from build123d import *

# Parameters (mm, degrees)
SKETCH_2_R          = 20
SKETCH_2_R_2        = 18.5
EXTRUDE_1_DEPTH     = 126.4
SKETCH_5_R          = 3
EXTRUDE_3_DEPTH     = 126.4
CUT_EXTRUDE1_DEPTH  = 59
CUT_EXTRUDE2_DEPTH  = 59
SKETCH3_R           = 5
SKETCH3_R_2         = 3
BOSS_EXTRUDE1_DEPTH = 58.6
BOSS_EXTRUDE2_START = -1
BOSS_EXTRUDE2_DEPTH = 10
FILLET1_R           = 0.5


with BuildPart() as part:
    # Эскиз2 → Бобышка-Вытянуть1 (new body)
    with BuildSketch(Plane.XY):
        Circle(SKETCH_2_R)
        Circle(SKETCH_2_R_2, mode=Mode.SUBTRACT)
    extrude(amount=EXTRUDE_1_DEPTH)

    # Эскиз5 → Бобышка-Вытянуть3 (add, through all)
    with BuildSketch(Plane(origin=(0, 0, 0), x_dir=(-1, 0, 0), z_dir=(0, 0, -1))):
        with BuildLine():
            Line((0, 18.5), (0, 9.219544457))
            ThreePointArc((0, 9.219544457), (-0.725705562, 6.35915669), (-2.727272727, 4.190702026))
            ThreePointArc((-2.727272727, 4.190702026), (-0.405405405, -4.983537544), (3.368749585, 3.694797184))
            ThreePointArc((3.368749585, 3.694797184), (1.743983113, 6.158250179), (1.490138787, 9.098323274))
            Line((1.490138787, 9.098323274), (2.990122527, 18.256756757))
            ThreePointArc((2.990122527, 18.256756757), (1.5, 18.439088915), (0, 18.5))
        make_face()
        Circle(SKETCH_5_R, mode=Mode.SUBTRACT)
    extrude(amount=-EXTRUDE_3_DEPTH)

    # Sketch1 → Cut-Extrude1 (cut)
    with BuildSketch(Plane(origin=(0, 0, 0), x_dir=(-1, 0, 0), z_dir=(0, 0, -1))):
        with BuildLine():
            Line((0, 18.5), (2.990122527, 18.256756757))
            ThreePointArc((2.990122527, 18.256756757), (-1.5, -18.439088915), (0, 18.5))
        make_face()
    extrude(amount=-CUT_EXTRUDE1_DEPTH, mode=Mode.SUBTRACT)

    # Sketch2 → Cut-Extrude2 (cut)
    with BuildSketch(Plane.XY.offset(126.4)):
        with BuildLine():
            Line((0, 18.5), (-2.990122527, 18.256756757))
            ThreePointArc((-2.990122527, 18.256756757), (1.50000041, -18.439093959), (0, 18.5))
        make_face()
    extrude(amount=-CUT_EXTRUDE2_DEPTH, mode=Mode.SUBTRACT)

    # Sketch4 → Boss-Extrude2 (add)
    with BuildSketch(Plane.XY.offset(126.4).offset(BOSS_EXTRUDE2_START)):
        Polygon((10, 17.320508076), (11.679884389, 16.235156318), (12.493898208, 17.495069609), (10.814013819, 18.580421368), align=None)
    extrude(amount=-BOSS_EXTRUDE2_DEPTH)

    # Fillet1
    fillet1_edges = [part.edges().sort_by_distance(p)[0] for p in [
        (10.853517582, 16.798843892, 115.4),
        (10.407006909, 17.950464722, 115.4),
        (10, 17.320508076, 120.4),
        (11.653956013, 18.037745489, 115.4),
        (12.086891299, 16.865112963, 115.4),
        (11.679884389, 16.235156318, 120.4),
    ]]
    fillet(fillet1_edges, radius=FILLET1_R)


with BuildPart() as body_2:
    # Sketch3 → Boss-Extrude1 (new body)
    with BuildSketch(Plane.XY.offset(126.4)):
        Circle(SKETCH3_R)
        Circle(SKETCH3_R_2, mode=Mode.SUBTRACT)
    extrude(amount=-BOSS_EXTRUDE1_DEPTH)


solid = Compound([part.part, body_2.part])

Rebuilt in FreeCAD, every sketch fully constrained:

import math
import FreeCAD as App
import Part
import Sketcher
from FreeCAD import Vector
Q = App.Units.Quantity


def edges_at(feature, points):
    """Names of the edges that pass closest to the given points."""
    edges = feature.Shape.Edges
    near = lambda p: min(range(len(edges)), key=lambda i: edges[i].distToShape(Part.Vertex(*p))[0])
    return sorted({f"Edge{near(p) + 1}" for p in points})

doc = App.newDocument("Part")
params = doc.addObject("Spreadsheet::Sheet", "Params")
for row, (alias, value) in enumerate([
    ("sketch1_diameter", "40 mm"),
    ("sketch1_diameter2", "37 mm"),
    ("pad1_length", "126.4 mm"),
    ("sketch2_diameter", "6 mm"),
    ("sketch2_radius", "6 mm"),
    ("sketch2_radius2", "5 mm"),
    ("sketch2_radius3", "18.5 mm"),
    ("pad2_length", "126.4 mm"),
    ("sketch3_radius", "18.5 mm"),
    ("sketch3_length", "3 mm"),
    ("pocket1_length", "59 mm"),
    ("sketch4_length", "3 mm"),
    ("pocket2_length", "59 mm"),
    ("sketch5_length", "2 mm"),
    ("sketch5_length2", "1.5 mm"),
    ("pad3_length", "10 mm"),
    ("fillet_radius", "0.5 mm"),
    ("sketch6_diameter", "10 mm"),
    ("sketch6_diameter2", "6 mm"),
    ("pad4_length", "58.6 mm"),
], start=1):
    params.set(f"A{row}", alias)
    params.set(f"B{row}", "=" + value)
    params.setAlias(f"B{row}", alias)

body = doc.addObject("PartDesign::Body", "Body")

# Sketch on XY plane
sketch1 = body.newObject("Sketcher::SketchObject", "Sketch")
sketch1.AttachmentSupport = (doc.getObject("XY_Plane"), [""])
sketch1.MapMode = "FlatFace"
sketch1.addGeometry([
    Part.Circle(Vector(0, 0, 0), Vector(0, 0, 1), 20),
    Part.Circle(Vector(0, 0, 0), Vector(0, 0, 1), 18.5),
], False)
sketch1.addConstraint([
    Sketcher.Constraint("Coincident", 0, 3, -1, 1),
    Sketcher.Constraint("Coincident", 1, 3, -1, 1),
    Sketcher.Constraint("Diameter", 0, Q("40 mm")),
    Sketcher.Constraint("Diameter", 1, Q("37 mm")),
])
sketch1.setExpression("Constraints[2]", "Params.sketch1_diameter")
sketch1.setExpression("Constraints[3]", "Params.sketch1_diameter2")
pad1 = body.newObject("PartDesign::Pad", "Pad")
pad1.Profile = sketch1
pad1.setExpression("Length", "Params.pad1_length")

# Sketch on XY plane
sketch2 = body.newObject("Sketcher::SketchObject", "Sketch001")
sketch2.AttachmentSupport = (doc.getObject("XY_Plane"), [""])
sketch2.MapMode = "FlatFace"
sketch2.addGeometry([
    Part.LineSegment(Vector(0, 18.5, 0), Vector(0, 9.219544, 0)),  # 0
    Part.ArcOfCircle(Part.Circle(Vector(6, 9.219544, 0), Vector(0, 0, 1), 6), math.radians(-180), math.radians(-123.055731)),  # 1
    Part.ArcOfCircle(Part.Circle(Vector(0, 0, 0), Vector(0, 0, 1), 5), math.radians(132.357149), math.radians(416.944269)),  # 2
    Part.ArcOfCircle(Part.Circle(Vector(-7.411249, 8.128554, 0), Vector(0, 0, 1), 6), math.radians(-47.642851), math.radians(9.301418)),  # 3
    Part.LineSegment(Vector(-1.490139, 9.098323, 0), Vector(-2.990123, 18.256757, 0)),  # 4
    Part.ArcOfCircle(Part.Circle(Vector(0, 0, 0), Vector(0, 0, 1), 18.5), math.radians(90), math.radians(99.301418)),  # 5
    Part.Circle(Vector(0, 0, 0), Vector(0, 0, 1), 3),  # 6
], False)
sketch2.addConstraint([
    Sketcher.Constraint("Tangent", 0, 2, 1, 1),
    Sketcher.Constraint("Tangent", 1, 2, 2, 2),
    Sketcher.Constraint("Tangent", 2, 1, 3, 1),
    Sketcher.Constraint("Tangent", 3, 2, 4, 1),
    Sketcher.Constraint("Coincident", 4, 2, 5, 2),
    Sketcher.Constraint("Coincident", 5, 1, 0, 1),
    Sketcher.Constraint("Vertical", 0),
    Sketcher.Constraint("Coincident", 2, 3, -1, 1),
    Sketcher.Constraint("Coincident", 5, 3, -1, 1),
    Sketcher.Constraint("Coincident", 6, 3, -1, 1),
    Sketcher.Constraint("Equal", 1, 3),
    Sketcher.Constraint("PointOnObject", 0, 2, -2),
    Sketcher.Constraint("Diameter", 6, Q("6 mm")),
    Sketcher.Constraint("Radius", 1, Q("6 mm")),
    Sketcher.Constraint("Radius", 2, Q("5 mm")),
    Sketcher.Constraint("Radius", 5, Q("18.5 mm")),
    Sketcher.Constraint("DistanceX", 3, 3, 2, 1, Q("4.0425 mm")),
    Sketcher.Constraint("DistanceX", 3, 2, -1, 1, Q("1.490139 mm")),
])
sketch2.setExpression("Constraints[12]", "Params.sketch2_diameter")
sketch2.setExpression("Constraints[13]", "Params.sketch2_radius")
sketch2.setExpression("Constraints[14]", "Params.sketch2_radius2")
sketch2.setExpression("Constraints[15]", "Params.sketch2_radius3")
pad2 = body.newObject("PartDesign::Pad", "Pad001")
pad2.Profile = sketch2
pad2.setExpression("Length", "Params.pad2_length")

# Sketch on XY plane
sketch3 = body.newObject("Sketcher::SketchObject", "Sketch002")
sketch3.AttachmentSupport = (doc.getObject("XY_Plane"), [""])
sketch3.MapMode = "FlatFace"
sketch3.addGeometry([
    Part.LineSegment(Vector(-2.990123, 18.256757, 0), Vector(0, 18.5, 0)),
    Part.ArcOfCircle(Part.Circle(Vector(0, 0, 0), Vector(0, 0, 1), 18.5), math.radians(99.301418), math.radians(450)),
], False)
sketch3.addConstraint([
    Sketcher.Constraint("Coincident", 0, 1, 1, 1),
    Sketcher.Constraint("Coincident", 1, 2, 0, 2),
    Sketcher.Constraint("Coincident", 1, 3, -1, 1),
    Sketcher.Constraint("PointOnObject", 1, 2, -2),
    Sketcher.Constraint("Radius", 1, Q("18.5 mm")),
    Sketcher.Constraint("Distance", 0, Q("3 mm")),
])
sketch3.setExpression("Constraints[4]", "Params.sketch3_radius")
sketch3.setExpression("Constraints[5]", "Params.sketch3_length")
pocket1 = body.newObject("PartDesign::Pocket", "Pocket")
pocket1.Profile = sketch3
pocket1.setExpression("Length", "Params.pocket1_length")
pocket1.Reversed = True

# Sketch on XY plane
sketch4 = body.newObject("Sketcher::SketchObject", "Sketch003")
sketch4.AttachmentSupport = (doc.getObject("XY_Plane"), [""])
sketch4.MapMode = "FlatFace"
sketch4.AttachmentOffset = App.Placement(Vector(0, 0, 126.4), App.Rotation())
sketch4.addGeometry([
    Part.LineSegment(Vector(0, 18.5, 0), Vector(-2.990123, 18.256757, 0)),
    Part.ArcOfCircle(Part.Circle(Vector(0, -0.000003, 0), Vector(0, 0, 1), 18.500003), math.radians(99.301417), math.radians(450.000001)),
], False)
sketch4.addConstraint([
    Sketcher.Constraint("Coincident", 0, 1, 1, 2),
    Sketcher.Constraint("Coincident", 1, 1, 0, 2),
    Sketcher.Constraint("Coincident", 1, 3, -1, 1),
    Sketcher.Constraint("PointOnObject", 0, 1, -2),
    Sketcher.Constraint("Distance", 0, Q("3 mm")),
    Sketcher.Constraint("DistanceY", -1, 1, 0, 1, Q("18.5 mm")),
])
sketch4.setExpression("Constraints[4]", "Params.sketch4_length")
pocket2 = body.newObject("PartDesign::Pocket", "Pocket001")
pocket2.Profile = sketch4
pocket2.setExpression("Length", "Params.pocket2_length")

# Sketch on XY plane
sketch5 = body.newObject("Sketcher::SketchObject", "Sketch004")
sketch5.AttachmentSupport = (doc.getObject("XY_Plane"), [""])
sketch5.MapMode = "FlatFace"
sketch5.AttachmentOffset = App.Placement(Vector(0, 0, 125.4), App.Rotation())
sketch5.addGeometry([
    Part.LineSegment(Vector(10, 17.320508, 0), Vector(11.679884, 16.235156, 0)),
    Part.LineSegment(Vector(11.679884, 16.235156, 0), Vector(12.493898, 17.49507, 0)),
    Part.LineSegment(Vector(12.493898, 17.49507, 0), Vector(10.814014, 18.580421, 0)),
    Part.LineSegment(Vector(10.814014, 18.580421, 0), Vector(10, 17.320508, 0)),
], False)
sketch5.addConstraint([
    Sketcher.Constraint("Coincident", 0, 2, 1, 1),
    Sketcher.Constraint("Coincident", 1, 2, 2, 1),
    Sketcher.Constraint("Coincident", 2, 2, 3, 1),
    Sketcher.Constraint("Coincident", 3, 2, 0, 1),
    Sketcher.Constraint("Perpendicular", 0, 1),
    Sketcher.Constraint("Perpendicular", 1, 2),
    Sketcher.Constraint("Perpendicular", 2, 3),
    Sketcher.Constraint("Distance", 0, Q("2 mm")),
    Sketcher.Constraint("DistanceX", -1, 1, 3, 2, Q("10 mm")),
    Sketcher.Constraint("Distance", 1, Q("1.5 mm")),
    Sketcher.Constraint("DistanceX", -1, 1, 1, 2, Q("12.493898 mm")),
    Sketcher.Constraint("DistanceY", -1, 1, 1, 2, Q("17.49507 mm")),
])
sketch5.setExpression("Constraints[7]", "Params.sketch5_length")
sketch5.setExpression("Constraints[9]", "Params.sketch5_length2")
pad3 = body.newObject("PartDesign::Pad", "Pad002")
pad3.Profile = sketch5
pad3.setExpression("Length", "Params.pad3_length")
pad3.Reversed = True
doc.recompute()

fillet = body.newObject("PartDesign::Fillet", "Fillet")
fillet.Base = (pad3, edges_at(pad3, [
    (10.854, 16.799, 115.4),
    (10.407, 17.95, 115.4),
    (10, 17.321, 120.4),
    (11.654, 18.038, 115.4),
    (12.087, 16.865, 115.4),
    (11.68, 16.235, 120.4),
]))
fillet.setExpression("Radius", "Params.fillet_radius")
body2 = doc.addObject("PartDesign::Body", "Body001")

# Sketch on XY plane
sketch6 = body2.newObject("Sketcher::SketchObject", "Sketch005")
sketch6.AttachmentSupport = (doc.getObject("XY_Plane001"), [""])
sketch6.MapMode = "FlatFace"
sketch6.AttachmentOffset = App.Placement(Vector(0, 0, 126.4), App.Rotation())
sketch6.addGeometry([
    Part.Circle(Vector(0, 0, 0), Vector(0, 0, 1), 5),
    Part.Circle(Vector(0, 0, 0), Vector(0, 0, 1), 3),
], False)
sketch6.addConstraint([
    Sketcher.Constraint("Coincident", 0, 3, -1, 1),
    Sketcher.Constraint("Coincident", 1, 3, -1, 1),
    Sketcher.Constraint("Diameter", 0, Q("10 mm")),
    Sketcher.Constraint("Diameter", 1, Q("6 mm")),
])
sketch6.setExpression("Constraints[2]", "Params.sketch6_diameter")
sketch6.setExpression("Constraints[3]", "Params.sketch6_diameter2")
pad4 = body2.newObject("PartDesign::Pad", "Pad003")
pad4.Profile = sketch6
pad4.setExpression("Length", "Params.pad4_length")
pad4.Reversed = True

doc.recompute()
